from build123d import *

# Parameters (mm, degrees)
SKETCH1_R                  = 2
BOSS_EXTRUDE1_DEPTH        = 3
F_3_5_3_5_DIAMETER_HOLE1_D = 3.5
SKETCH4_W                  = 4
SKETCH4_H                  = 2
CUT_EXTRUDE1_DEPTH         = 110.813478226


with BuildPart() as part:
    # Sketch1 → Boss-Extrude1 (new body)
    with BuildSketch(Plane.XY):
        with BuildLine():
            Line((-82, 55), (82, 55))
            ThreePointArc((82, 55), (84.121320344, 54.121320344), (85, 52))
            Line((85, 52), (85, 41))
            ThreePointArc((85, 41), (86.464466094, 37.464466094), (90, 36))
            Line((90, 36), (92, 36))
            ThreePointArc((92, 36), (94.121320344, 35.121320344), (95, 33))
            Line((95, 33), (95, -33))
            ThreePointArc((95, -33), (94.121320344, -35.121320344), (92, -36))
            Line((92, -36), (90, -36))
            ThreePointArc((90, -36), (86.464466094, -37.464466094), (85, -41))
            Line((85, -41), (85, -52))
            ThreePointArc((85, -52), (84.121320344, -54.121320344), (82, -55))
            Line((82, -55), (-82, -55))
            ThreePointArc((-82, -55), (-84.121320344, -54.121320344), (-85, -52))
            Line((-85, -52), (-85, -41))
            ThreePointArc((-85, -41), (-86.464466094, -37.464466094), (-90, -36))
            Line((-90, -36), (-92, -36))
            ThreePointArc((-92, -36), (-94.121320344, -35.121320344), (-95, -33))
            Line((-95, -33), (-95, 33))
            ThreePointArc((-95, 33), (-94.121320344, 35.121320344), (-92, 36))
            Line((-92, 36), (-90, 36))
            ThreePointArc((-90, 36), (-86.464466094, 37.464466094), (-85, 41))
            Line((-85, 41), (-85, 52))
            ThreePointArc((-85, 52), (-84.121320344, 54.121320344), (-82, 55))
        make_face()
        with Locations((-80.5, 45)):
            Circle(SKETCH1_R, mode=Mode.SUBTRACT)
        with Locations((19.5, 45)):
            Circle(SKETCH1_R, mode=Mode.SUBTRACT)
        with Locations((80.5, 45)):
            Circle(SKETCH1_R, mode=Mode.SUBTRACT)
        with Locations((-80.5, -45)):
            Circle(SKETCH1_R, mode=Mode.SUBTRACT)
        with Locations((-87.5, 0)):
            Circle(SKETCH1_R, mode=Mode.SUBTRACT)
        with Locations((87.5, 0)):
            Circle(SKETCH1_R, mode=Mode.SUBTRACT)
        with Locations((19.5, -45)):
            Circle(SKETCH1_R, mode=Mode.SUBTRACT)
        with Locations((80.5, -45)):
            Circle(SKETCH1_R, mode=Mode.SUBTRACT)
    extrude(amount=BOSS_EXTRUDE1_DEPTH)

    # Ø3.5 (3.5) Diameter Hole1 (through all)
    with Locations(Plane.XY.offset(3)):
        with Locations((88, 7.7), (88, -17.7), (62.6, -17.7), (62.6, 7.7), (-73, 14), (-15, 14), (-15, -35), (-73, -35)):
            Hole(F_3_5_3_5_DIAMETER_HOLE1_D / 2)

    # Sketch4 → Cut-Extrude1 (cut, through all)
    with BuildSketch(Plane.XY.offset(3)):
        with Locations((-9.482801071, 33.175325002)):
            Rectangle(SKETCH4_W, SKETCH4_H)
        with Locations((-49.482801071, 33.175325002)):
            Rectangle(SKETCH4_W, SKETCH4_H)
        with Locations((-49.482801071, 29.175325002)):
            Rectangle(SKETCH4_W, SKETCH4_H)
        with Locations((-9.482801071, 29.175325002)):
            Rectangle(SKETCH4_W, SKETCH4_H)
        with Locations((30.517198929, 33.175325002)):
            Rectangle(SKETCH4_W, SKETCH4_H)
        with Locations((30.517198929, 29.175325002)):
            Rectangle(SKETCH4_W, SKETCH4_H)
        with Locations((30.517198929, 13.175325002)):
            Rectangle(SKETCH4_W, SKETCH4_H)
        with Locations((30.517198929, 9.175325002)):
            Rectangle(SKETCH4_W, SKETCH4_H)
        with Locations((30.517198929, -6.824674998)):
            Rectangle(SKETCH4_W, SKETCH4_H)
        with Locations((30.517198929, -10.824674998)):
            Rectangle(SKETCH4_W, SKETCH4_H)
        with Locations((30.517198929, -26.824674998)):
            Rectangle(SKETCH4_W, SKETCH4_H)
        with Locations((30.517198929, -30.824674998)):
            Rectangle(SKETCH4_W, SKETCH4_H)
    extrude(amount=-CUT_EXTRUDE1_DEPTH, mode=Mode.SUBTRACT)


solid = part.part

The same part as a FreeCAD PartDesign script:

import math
import FreeCAD as App
import Part
import Sketcher
from FreeCAD import Vector

doc = App.newDocument("Part")
body = doc.addObject("PartDesign::Body", "Body")

sketch1 = body.newObject("Sketcher::SketchObject", "Sketch")
sketch1.AttachmentSupport = (doc.getObject("XY_Plane"), [""])
sketch1.MapMode = "FlatFace"
sketch1.addGeometry([
    Part.LineSegment(Vector(82, 55, 0), Vector(-82, 55, 0)),
    Part.ArcOfCircle(Part.Circle(Vector(-82, 52, 0), Vector(0, 0, 1), 3), math.radians(90), math.radians(180)),
    Part.LineSegment(Vector(-85, 52, 0), Vector(-85, 41, 0)),
    Part.ArcOfCircle(Part.Circle(Vector(-90, 41, 0), Vector(0, 0, 1), 5), math.radians(-90), math.radians(0)),
    Part.LineSegment(Vector(-90, 36, 0), Vector(-92, 36, 0)),
    Part.ArcOfCircle(Part.Circle(Vector(-92, 33, 0), Vector(0, 0, 1), 3), math.radians(90), math.radians(180)),
    Part.LineSegment(Vector(-95, 33, 0), Vector(-95, -33, 0)),
    Part.ArcOfCircle(Part.Circle(Vector(-92, -33, 0), Vector(0, 0, 1), 3), math.radians(180), math.radians(270)),
    Part.LineSegment(Vector(-92, -36, 0), Vector(-90, -36, 0)),
    Part.ArcOfCircle(Part.Circle(Vector(-90, -41, 0), Vector(0, 0, 1), 5), math.radians(0), math.radians(90)),
    Part.LineSegment(Vector(-85, -41, 0), Vector(-85, -52, 0)),
    Part.ArcOfCircle(Part.Circle(Vector(-82, -52, 0), Vector(0, 0, 1), 3), math.radians(180), math.radians(270)),
    Part.LineSegment(Vector(-82, -55, 0), Vector(82, -55, 0)),
    Part.ArcOfCircle(Part.Circle(Vector(82, -52, 0), Vector(0, 0, 1), 3), math.radians(-90), math.radians(0)),
    Part.LineSegment(Vector(85, -52, 0), Vector(85, -41, 0)),
    Part.ArcOfCircle(Part.Circle(Vector(90, -41, 0), Vector(0, 0, 1), 5), math.radians(90), math.radians(180)),
    Part.LineSegment(Vector(90, -36, 0), Vector(92, -36, 0)),
    Part.ArcOfCircle(Part.Circle(Vector(92, -33, 0), Vector(0, 0, 1), 3), math.radians(-90), math.radians(0)),
    Part.LineSegment(Vector(95, -33, 0), Vector(95, 33, 0)),
    Part.ArcOfCircle(Part.Circle(Vector(92, 33, 0), Vector(0, 0, 1), 3), math.radians(0), math.radians(90)),
    Part.LineSegment(Vector(92, 36, 0), Vector(90, 36, 0)),
    Part.ArcOfCircle(Part.Circle(Vector(90, 41, 0), Vector(0, 0, 1), 5), math.radians(180), math.radians(270)),
    Part.LineSegment(Vector(85, 41, 0), Vector(85, 52, 0)),
    Part.ArcOfCircle(Part.Circle(Vector(82, 52, 0), Vector(0, 0, 1), 3), math.radians(0), math.radians(90)),
    Part.Circle(Vector(80.5, -45, 0), Vector(0, 0, 1), 2),
    Part.Circle(Vector(19.5, -45, 0), Vector(0, 0, 1), 2),
    Part.Circle(Vector(-80.5, -45, 0), Vector(0, 0, 1), 2),
    Part.Circle(Vector(87.5, 0, 0), Vector(0, 0, 1), 2),
    Part.Circle(Vector(80.5, 45, 0), Vector(0, 0, 1), 2),
    Part.Circle(Vector(19.5, 45, 0), Vector(0, 0, 1), 2),
    Part.Circle(Vector(-87.5, 0, 0), Vector(0, 0, 1), 2),
    Part.Circle(Vector(-80.5, 45, 0), Vector(0, 0, 1), 2),
], False)
sketch1.addConstraint([
    Sketcher.Constraint("Tangent", 0, 2, 1, 1),
    Sketcher.Constraint("Tangent", 1, 2, 2, 1),
    Sketcher.Constraint("Tangent", 2, 2, 3, 2),
    Sketcher.Constraint("Tangent", 3, 1, 4, 1),
    Sketcher.Constraint("Tangent", 4, 2, 5, 1),
    Sketcher.Constraint("Tangent", 5, 2, 6, 1),
    Sketcher.Constraint("Tangent", 6, 2, 7, 1),
    Sketcher.Constraint("Tangent", 7, 2, 8, 1),
    Sketcher.Constraint("Tangent", 8, 2, 9, 2),
    Sketcher.Constraint("Tangent", 9, 1, 10, 1),
    Sketcher.Constraint("Tangent", 10, 2, 11, 1),
    Sketcher.Constraint("Tangent", 11, 2, 12, 1),
    Sketcher.Constraint("Tangent", 12, 2, 13, 1),
    Sketcher.Constraint("Tangent", 13, 2, 14, 1),
    Sketcher.Constraint("Tangent", 14, 2, 15, 2),
    Sketcher.Constraint("Tangent", 15, 1, 16, 1),
    Sketcher.Constraint("Tangent", 16, 2, 17, 1),
    Sketcher.Constraint("Tangent", 17, 2, 18, 1),
    Sketcher.Constraint("Tangent", 18, 2, 19, 1),
    Sketcher.Constraint("Tangent", 19, 2, 20, 1),
    Sketcher.Constraint("Tangent", 20, 2, 21, 2),
    Sketcher.Constraint("Tangent", 21, 1, 22, 1),
    Sketcher.Constraint("Tangent", 22, 2, 23, 1),
    Sketcher.Constraint("Tangent", 23, 2, 0, 1),
    Sketcher.Constraint("Horizontal", 0),
    Sketcher.Constraint("Vertical", 2),
    Sketcher.Constraint("Horizontal", 4),
    Sketcher.Constraint("Vertical", 6),
    Sketcher.Constraint("Horizontal", 8),
    Sketcher.Constraint("Vertical", 10),
    Sketcher.Constraint("Horizontal", 12),
    Sketcher.Constraint("Vertical", 14),
    Sketcher.Constraint("Horizontal", 16),
    Sketcher.Constraint("Vertical", 18),
    Sketcher.Constraint("Horizontal", 20),
    Sketcher.Constraint("Vertical", 22),
    Sketcher.Constraint("Equal", 1, 5),
    Sketcher.Constraint("Equal", 5, 7),
    Sketcher.Constraint("Equal", 3, 9),
    Sketcher.Constraint("Equal", 7, 11),
    Sketcher.Constraint("Equal", 11, 13),
    Sketcher.Constraint("Equal", 9, 15),
    Sketcher.Constraint("Equal", 13, 17),
    Sketcher.Constraint("Equal", 17, 19),
    Sketcher.Constraint("Equal", 15, 21),
    Sketcher.Constraint("Equal", 19, 23),
    Sketcher.Constraint("Equal", 24, 25),
    Sketcher.Constraint("Equal", 25, 26),
    Sketcher.Constraint("Equal", 26, 27),
    Sketcher.Constraint("Equal", 27, 28),
    Sketcher.Constraint("Equal", 28, 29),
    Sketcher.Constraint("Equal", 29, 30),
    Sketcher.Constraint("Equal", 30, 31),
    Sketcher.Constraint("Symmetric", 1, 3, 13, 3, -1, 1),
    Sketcher.Constraint("Symmetric", 5, 3, 17, 3, -1, 1),
    Sketcher.Constraint("Symmetric", 9, 3, 21, 3, -1, 1),
    Sketcher.Constraint("Symmetric", 26, 3, 28, 3, -1, 1),
    Sketcher.Constraint("Symmetric", 27, 3, 30, 3, -1, 1),
    Sketcher.Constraint("Symmetric", 24, 3, 31, 3, -1, 1),
    Sketcher.Constraint("Symmetric", 9, 3, 15, 3, -2),
    Sketcher.Constraint("Symmetric", 24, 3, 26, 3, -2),
    Sketcher.Constraint("Symmetric", 25, 3, 29, 3, -1),
    Sketcher.Constraint("PointOnObject", 27, 3, -1),
    Sketcher.Constraint("Horizontal", 24, 3, 25, 3),
    Sketcher.Constraint("Diameter", 24, 4.0),
    Sketcher.Constraint("Radius", 1, 3.0),
    Sketcher.Constraint("Radius", 3, 5.0),
    Sketcher.Constraint("DistanceX", 0, 2, 0, 1, 164.0),
    Sketcher.Constraint("DistanceX", 4, 2, 4, 1, 2.0),
    Sketcher.Constraint("DistanceY", 2, 2, 2, 1, 11.0),
    Sketcher.Constraint("DistanceY", 6, 2, 6, 1, 66.0),
    Sketcher.Constraint("DistanceY", 24, 3, -1, 1, 45.0),
    Sketcher.Constraint("DistanceX", 25, 3, 24, 3, 61.0),
    Sketcher.Constraint("DistanceX", 24, 3, 27, 3, 7.0),
    Sketcher.Constraint("DistanceX", -1, 1, 24, 3, 80.5),
])
pad1 = body.newObject("PartDesign::Pad", "Pad")
pad1.Profile = sketch1
pad1.Length = 3

sketch2 = body.newObject("Sketcher::SketchObject", "Sketch001")
sketch2.AttachmentSupport = (doc.getObject("XY_Plane"), [""])
sketch2.MapMode = "FlatFace"
sketch2.AttachmentOffset = App.Placement(Vector(0, 0, 3), App.Rotation())
sketch2.addGeometry([
    Part.Circle(Vector(88, 7.7, 0), Vector(0, 0, 1), 1.8),
    Part.Circle(Vector(88, -17.7, 0), Vector(0, 0, 1), 1.8),
    Part.Circle(Vector(62.6, -17.7, 0), Vector(0, 0, 1), 1.8),
    Part.Circle(Vector(62.6, 7.7, 0), Vector(0, 0, 1), 1.8),
    Part.Circle(Vector(-73, 14, 0), Vector(0, 0, 1), 1.8),
    Part.Circle(Vector(-15, 14, 0), Vector(0, 0, 1), 1.8),
    Part.Circle(Vector(-15, -35, 0), Vector(0, 0, 1), 1.8),
    Part.Circle(Vector(-73, -35, 0), Vector(0, 0, 1), 1.8),
], False)
sketch2.addConstraint([
    Sketcher.Constraint("Equal", 0, 1),
    Sketcher.Constraint("Equal", 1, 2),
    Sketcher.Constraint("Equal", 2, 3),
    Sketcher.Constraint("Equal", 3, 4),
    Sketcher.Constraint("Equal", 4, 5),
    Sketcher.Constraint("Equal", 5, 6),
    Sketcher.Constraint("Equal", 6, 7),
    Sketcher.Constraint("Horizontal", 1, 3, 2, 3),
    Sketcher.Constraint("Horizontal", 0, 3, 3, 3),
    Sketcher.Constraint("Horizontal", 4, 3, 5, 3),
    Sketcher.Constraint("Horizontal", 6, 3, 7, 3),
    Sketcher.Constraint("Vertical", 0, 3, 1, 3),
    Sketcher.Constraint("Vertical", 2, 3, 3, 3),
    Sketcher.Constraint("Vertical", 5, 3, 6, 3),
    Sketcher.Constraint("Vertical", 4, 3, 7, 3),
    Sketcher.Constraint("Diameter", 0, 3.5),
    Sketcher.Constraint("DistanceX", -1, 1, 0, 3, 88.0),
    Sketcher.Constraint("DistanceX", 4, 3, -1, 1, 73.0),
    Sketcher.Constraint("DistanceY", -1, 1, 4, 3, 14.0),
    Sketcher.Constraint("DistanceX", 5, 3, -1, 1, 15.0),
    Sketcher.Constraint("DistanceY", 6, 3, -1, 1, 35.0),
    Sketcher.Constraint("DistanceY", -1, 1, 0, 3, 7.7),
    Sketcher.Constraint("DistanceY", 1, 3, -1, 1, 17.7),
    Sketcher.Constraint("DistanceX", -1, 1, 2, 3, 62.6),
])
doc.recompute()
hole = body.newObject("PartDesign::Hole", "Hole")
hole.Profile = sketch2
hole.ThreadType = "None"
hole.Diameter = 3.5
hole.DepthType = "ThroughAll"

sketch3 = body.newObject("Sketcher::SketchObject", "Sketch002")
sketch3.AttachmentSupport = (doc.getObject("XY_Plane"), [""])
sketch3.MapMode = "FlatFace"
sketch3.AttachmentOffset = App.Placement(Vector(0, 0, 3), App.Rotation())
sketch3.addGeometry([
    Part.LineSegment(Vector(-11.5, 34.2, 0), Vector(-11.5, 32.2, 0)),
    Part.LineSegment(Vector(-11.5, 32.2, 0), Vector(-7.5, 32.2, 0)),
    Part.LineSegment(Vector(-7.5, 32.2, 0), Vector(-7.5, 34.2, 0)),
    Part.LineSegment(Vector(-7.5, 34.2, 0), Vector(-11.5, 34.2, 0)),
    Part.LineSegment(Vector(-51.5, 34.2, 0), Vector(-51.5, 32.2, 0)),
    Part.LineSegment(Vector(-51.5, 32.2, 0), Vector(-47.5, 32.2, 0)),
    Part.LineSegment(Vector(-47.5, 32.2, 0), Vector(-47.5, 34.2, 0)),
    Part.LineSegment(Vector(-47.5, 34.2, 0), Vector(-51.5, 34.2, 0)),
    Part.LineSegment(Vector(-51.5, 30.2, 0), Vector(-51.5, 28.2, 0)),
    Part.LineSegment(Vector(-51.5, 28.2, 0), Vector(-47.5, 28.2, 0)),
    Part.LineSegment(Vector(-47.5, 28.2, 0), Vector(-47.5, 30.2, 0)),
    Part.LineSegment(Vector(-47.5, 30.2, 0), Vector(-51.5, 30.2, 0)),
    Part.LineSegment(Vector(-11.5, 30.2, 0), Vector(-11.5, 28.2, 0)),
    Part.LineSegment(Vector(-11.5, 28.2, 0), Vector(-7.5, 28.2, 0)),
    Part.LineSegment(Vector(-7.5, 28.2, 0), Vector(-7.5, 30.2, 0)),
    Part.LineSegment(Vector(-7.5, 30.2, 0), Vector(-11.5, 30.2, 0)),
    Part.LineSegment(Vector(28.5, 34.2, 0), Vector(28.5, 32.2, 0)),
    Part.LineSegment(Vector(28.5, 32.2, 0), Vector(32.5, 32.2, 0)),
    Part.LineSegment(Vector(32.5, 32.2, 0), Vector(32.5, 34.2, 0)),
    Part.LineSegment(Vector(32.5, 34.2, 0), Vector(28.5, 34.2, 0)),
    Part.LineSegment(Vector(28.5, 30.2, 0), Vector(28.5, 28.2, 0)),
    Part.LineSegment(Vector(28.5, 28.2, 0), Vector(32.5, 28.2, 0)),
    Part.LineSegment(Vector(32.5, 28.2, 0), Vector(32.5, 30.2, 0)),
    Part.LineSegment(Vector(32.5, 30.2, 0), Vector(28.5, 30.2, 0)),
    Part.LineSegment(Vector(28.5, 14.2, 0), Vector(28.5, 12.2, 0)),
    Part.LineSegment(Vector(28.5, 12.2, 0), Vector(32.5, 12.2, 0)),
    Part.LineSegment(Vector(32.5, 12.2, 0), Vector(32.5, 14.2, 0)),
    Part.LineSegment(Vector(32.5, 14.2, 0), Vector(28.5, 14.2, 0)),
    Part.LineSegment(Vector(28.5, 10.2, 0), Vector(28.5, 8.2, 0)),
    Part.LineSegment(Vector(28.5, 8.2, 0), Vector(32.5, 8.2, 0)),
    Part.LineSegment(Vector(32.5, 8.2, 0), Vector(32.5, 10.2, 0)),
    Part.LineSegment(Vector(32.5, 10.2, 0), Vector(28.5, 10.2, 0)),
    Part.LineSegment(Vector(28.5, -5.8, 0), Vector(28.5, -7.8, 0)),
    Part.LineSegment(Vector(28.5, -7.8, 0), Vector(32.5, -7.8, 0)),
    Part.LineSegment(Vector(32.5, -7.8, 0), Vector(32.5, -5.8, 0)),
    Part.LineSegment(Vector(32.5, -5.8, 0), Vector(28.5, -5.8, 0)),
    Part.LineSegment(Vector(28.5, -9.8, 0), Vector(28.5, -11.8, 0)),
    Part.LineSegment(Vector(28.5, -11.8, 0), Vector(32.5, -11.8, 0)),
    Part.LineSegment(Vector(32.5, -11.8, 0), Vector(32.5, -9.8, 0)),
    Part.LineSegment(Vector(32.5, -9.8, 0), Vector(28.5, -9.8, 0)),
    Part.LineSegment(Vector(28.5, -25.8, 0), Vector(28.5, -27.8, 0)),
    Part.LineSegment(Vector(28.5, -27.8, 0), Vector(32.5, -27.8, 0)),
    Part.LineSegment(Vector(32.5, -27.8, 0), Vector(32.5, -25.8, 0)),
    Part.LineSegment(Vector(32.5, -25.8, 0), Vector(28.5, -25.8, 0)),
    Part.LineSegment(Vector(28.5, -29.8, 0), Vector(28.5, -31.8, 0)),
    Part.LineSegment(Vector(28.5, -31.8, 0), Vector(32.5, -31.8, 0)),
    Part.LineSegment(Vector(32.5, -31.8, 0), Vector(32.5, -29.8, 0)),
    Part.LineSegment(Vector(32.5, -29.8, 0), Vector(28.5, -29.8, 0)),
], False)
sketch3.addConstraint([
    Sketcher.Constraint("Coincident", 0, 2, 1, 1),
    Sketcher.Constraint("Coincident", 1, 2, 2, 1),
    Sketcher.Constraint("Coincident", 2, 2, 3, 1),
    Sketcher.Constraint("Coincident", 3, 2, 0, 1),
    Sketcher.Constraint("Coincident", 4, 2, 5, 1),
    Sketcher.Constraint("Coincident", 5, 2, 6, 1),
    Sketcher.Constraint("Coincident", 6, 2, 7, 1),
    Sketcher.Constraint("Coincident", 7, 2, 4, 1),
    Sketcher.Constraint("Coincident", 8, 2, 9, 1),
    Sketcher.Constraint("Coincident", 9, 2, 10, 1),
    Sketcher.Constraint("Coincident", 10, 2, 11, 1),
    Sketcher.Constraint("Coincident", 11, 2, 8, 1),
    Sketcher.Constraint("Coincident", 12, 2, 13, 1),
    Sketcher.Constraint("Coincident", 13, 2, 14, 1),
    Sketcher.Constraint("Coincident", 14, 2, 15, 1),
    Sketcher.Constraint("Coincident", 15, 2, 12, 1),
    Sketcher.Constraint("Coincident", 16, 2, 17, 1),
    Sketcher.Constraint("Coincident", 17, 2, 18, 1),
    Sketcher.Constraint("Coincident", 18, 2, 19, 1),
    Sketcher.Constraint("Coincident", 19, 2, 16, 1),
    Sketcher.Constraint("Coincident", 20, 2, 21, 1),
    Sketcher.Constraint("Coincident", 21, 2, 22, 1),
    Sketcher.Constraint("Coincident", 22, 2, 23, 1),
    Sketcher.Constraint("Coincident", 23, 2, 20, 1),
    Sketcher.Constraint("Coincident", 24, 2, 25, 1),
    Sketcher.Constraint("Coincident", 25, 2, 26, 1),
    Sketcher.Constraint("Coincident", 26, 2, 27, 1),
    Sketcher.Constraint("Coincident", 27, 2, 24, 1),
    Sketcher.Constraint("Coincident", 28, 2, 29, 1),
    Sketcher.Constraint("Coincident", 29, 2, 30, 1),
    Sketcher.Constraint("Coincident", 30, 2, 31, 1),
    Sketcher.Constraint("Coincident", 31, 2, 28, 1),
    Sketcher.Constraint("Coincident", 32, 2, 33, 1),
    Sketcher.Constraint("Coincident", 33, 2, 34, 1),
    Sketcher.Constraint("Coincident", 34, 2, 35, 1),
    Sketcher.Constraint("Coincident", 35, 2, 32, 1),
    Sketcher.Constraint("Coincident", 36, 2, 37, 1),
    Sketcher.Constraint("Coincident", 37, 2, 38, 1),
    Sketcher.Constraint("Coincident", 38, 2, 39, 1),
    Sketcher.Constraint("Coincident", 39, 2, 36, 1),
    Sketcher.Constraint("Coincident", 40, 2, 41, 1),
    Sketcher.Constraint("Coincident", 41, 2, 42, 1),
    Sketcher.Constraint("Coincident", 42, 2, 43, 1),
    Sketcher.Constraint("Coincident", 43, 2, 40, 1),
    Sketcher.Constraint("Coincident", 44, 2, 45, 1),
    Sketcher.Constraint("Coincident", 45, 2, 46, 1),
    Sketcher.Constraint("Coincident", 46, 2, 47, 1),
    Sketcher.Constraint("Coincident", 47, 2, 44, 1),
    Sketcher.Constraint("Vertical", 0),
    Sketcher.Constraint("Horizontal", 1),
    Sketcher.Constraint("Vertical", 2),
    Sketcher.Constraint("Horizontal", 3),
    Sketcher.Constraint("Vertical", 4),
    Sketcher.Constraint("Horizontal", 5),
    Sketcher.Constraint("Vertical", 6),
    Sketcher.Constraint("Horizontal", 7),
    Sketcher.Constraint("Vertical", 8),
    Sketcher.Constraint("Horizontal", 9),
    Sketcher.Constraint("Vertical", 10),
    Sketcher.Constraint("Horizontal", 11),
    Sketcher.Constraint("Vertical", 12),
    Sketcher.Constraint("Horizontal", 13),
    Sketcher.Constraint("Vertical", 14),
    Sketcher.Constraint("Horizontal", 15),
    Sketcher.Constraint("Vertical", 16),
    Sketcher.Constraint("Horizontal", 17),
    Sketcher.Constraint("Vertical", 18),
    Sketcher.Constraint("Horizontal", 19),
    Sketcher.Constraint("Vertical", 20),
    Sketcher.Constraint("Horizontal", 21),
    Sketcher.Constraint("Vertical", 22),
    Sketcher.Constraint("Horizontal", 23),
    Sketcher.Constraint("Vertical", 24),
    Sketcher.Constraint("Horizontal", 25),
    Sketcher.Constraint("Vertical", 26),
    Sketcher.Constraint("Horizontal", 27),
    Sketcher.Constraint("Vertical", 28),
    Sketcher.Constraint("Horizontal", 29),
    Sketcher.Constraint("Vertical", 30),
    Sketcher.Constraint("Horizontal", 31),
    Sketcher.Constraint("Vertical", 32),
    Sketcher.Constraint("Horizontal", 33),
    Sketcher.Constraint("Vertical", 34),
    Sketcher.Constraint("Horizontal", 35),
    Sketcher.Constraint("Vertical", 36),
    Sketcher.Constraint("Horizontal", 37),
    Sketcher.Constraint("Vertical", 38),
    Sketcher.Constraint("Horizontal", 39),
    Sketcher.Constraint("Vertical", 40),
    Sketcher.Constraint("Horizontal", 41),
    Sketcher.Constraint("Vertical", 42),
    Sketcher.Constraint("Horizontal", 43),
    Sketcher.Constraint("Vertical", 44),
    Sketcher.Constraint("Horizontal", 45),
    Sketcher.Constraint("Vertical", 46),
    Sketcher.Constraint("Horizontal", 47),
    Sketcher.Constraint("Horizontal", 1, 2, 4, 2),
    Sketcher.Constraint("Horizontal", 3, 2, 6, 2),
    Sketcher.Constraint("Horizontal", 9, 2, 12, 2),
    Sketcher.Constraint("Horizontal", 11, 2, 14, 2),
    Sketcher.Constraint("Horizontal", 5, 2, 16, 2),
    Sketcher.Constraint("Horizontal", 7, 2, 18, 2),
    Sketcher.Constraint("Horizontal", 13, 2, 20, 2),
    Sketcher.Constraint("Horizontal", 15, 2, 22, 2),
    Sketcher.Constraint("Vertical", 7, 2, 8, 2),
    Sketcher.Constraint("Vertical", 6, 2, 9, 2),
    Sketcher.Constraint("Vertical", 3, 2, 12, 2),
    Sketcher.Constraint("Vertical", 2, 2, 13, 2),
    Sketcher.Constraint("Vertical", 19, 2, 20, 2),
    Sketcher.Constraint("Vertical", 18, 2, 21, 2),
    Sketcher.Constraint("Vertical", 23, 2, 24, 2),
    Sketcher.Constraint("Vertical", 22, 2, 25, 2),
    Sketcher.Constraint("Vertical", 27, 2, 28, 2),
    Sketcher.Constraint("Vertical", 26, 2, 29, 2),
    Sketcher.Constraint("Vertical", 31, 2, 32, 2),
    Sketcher.Constraint("Vertical", 30, 2, 33, 2),
    Sketcher.Constraint("Vertical", 35, 2, 36, 2),
    Sketcher.Constraint("Vertical", 34, 2, 37, 2),
    Sketcher.Constraint("Vertical", 39, 2, 40, 2),
    Sketcher.Constraint("Vertical", 38, 2, 41, 2),
    Sketcher.Constraint("Vertical", 43, 2, 44, 2),
    Sketcher.Constraint("Vertical", 42, 2, 45, 2),
    Sketcher.Constraint("Equal", 3, 5),
    Sketcher.Constraint("Equal", 15, 17),
    Sketcher.Constraint("Equal", 6, 8),
    Sketcher.Constraint("Equal", 22, 24),
    Sketcher.Constraint("Equal", 26, 28),
    Sketcher.Constraint("Equal", 30, 32),
    Sketcher.Constraint("Equal", 34, 36),
    Sketcher.Constraint("Equal", 38, 40),
    Sketcher.Constraint("Equal", 42, 44),
    Sketcher.Constraint("DistanceX", 1, 1, 1, 2, 4.0),
    Sketcher.Constraint("DistanceY", 0, 2, 0, 1, 2.0),
    Sketcher.Constraint("DistanceX", 4, 2, 0, 2, 40.0),
    Sketcher.Constraint("DistanceY", 8, 2, 4, 2, 4.0),
    Sketcher.Constraint("DistanceX", 1, 2, 16, 2, 36.0),
    Sketcher.Constraint("DistanceY", 24, 2, 20, 2, 16.0),
    Sketcher.Constraint("DistanceY", 28, 2, 24, 2, 4.0),
    Sketcher.Constraint("DistanceY", 32, 2, 28, 2, 16.0),
    Sketcher.Constraint("DistanceY", 36, 2, 32, 2, 4.0),
    Sketcher.Constraint("DistanceY", 40, 2, 36, 2, 16.0),
    Sketcher.Constraint("DistanceY", 44, 2, 40, 2, 4.0),
    Sketcher.Constraint("DistanceX", 0, 2, -1, 1, 11.482801),
    Sketcher.Constraint("DistanceY", -1, 1, 0, 2, 32.175325),
])
pocket1 = body.newObject("PartDesign::Pocket", "Pocket")
pocket1.Profile = sketch3
pocket1.Type = "ThroughAll"

doc.recompute()
